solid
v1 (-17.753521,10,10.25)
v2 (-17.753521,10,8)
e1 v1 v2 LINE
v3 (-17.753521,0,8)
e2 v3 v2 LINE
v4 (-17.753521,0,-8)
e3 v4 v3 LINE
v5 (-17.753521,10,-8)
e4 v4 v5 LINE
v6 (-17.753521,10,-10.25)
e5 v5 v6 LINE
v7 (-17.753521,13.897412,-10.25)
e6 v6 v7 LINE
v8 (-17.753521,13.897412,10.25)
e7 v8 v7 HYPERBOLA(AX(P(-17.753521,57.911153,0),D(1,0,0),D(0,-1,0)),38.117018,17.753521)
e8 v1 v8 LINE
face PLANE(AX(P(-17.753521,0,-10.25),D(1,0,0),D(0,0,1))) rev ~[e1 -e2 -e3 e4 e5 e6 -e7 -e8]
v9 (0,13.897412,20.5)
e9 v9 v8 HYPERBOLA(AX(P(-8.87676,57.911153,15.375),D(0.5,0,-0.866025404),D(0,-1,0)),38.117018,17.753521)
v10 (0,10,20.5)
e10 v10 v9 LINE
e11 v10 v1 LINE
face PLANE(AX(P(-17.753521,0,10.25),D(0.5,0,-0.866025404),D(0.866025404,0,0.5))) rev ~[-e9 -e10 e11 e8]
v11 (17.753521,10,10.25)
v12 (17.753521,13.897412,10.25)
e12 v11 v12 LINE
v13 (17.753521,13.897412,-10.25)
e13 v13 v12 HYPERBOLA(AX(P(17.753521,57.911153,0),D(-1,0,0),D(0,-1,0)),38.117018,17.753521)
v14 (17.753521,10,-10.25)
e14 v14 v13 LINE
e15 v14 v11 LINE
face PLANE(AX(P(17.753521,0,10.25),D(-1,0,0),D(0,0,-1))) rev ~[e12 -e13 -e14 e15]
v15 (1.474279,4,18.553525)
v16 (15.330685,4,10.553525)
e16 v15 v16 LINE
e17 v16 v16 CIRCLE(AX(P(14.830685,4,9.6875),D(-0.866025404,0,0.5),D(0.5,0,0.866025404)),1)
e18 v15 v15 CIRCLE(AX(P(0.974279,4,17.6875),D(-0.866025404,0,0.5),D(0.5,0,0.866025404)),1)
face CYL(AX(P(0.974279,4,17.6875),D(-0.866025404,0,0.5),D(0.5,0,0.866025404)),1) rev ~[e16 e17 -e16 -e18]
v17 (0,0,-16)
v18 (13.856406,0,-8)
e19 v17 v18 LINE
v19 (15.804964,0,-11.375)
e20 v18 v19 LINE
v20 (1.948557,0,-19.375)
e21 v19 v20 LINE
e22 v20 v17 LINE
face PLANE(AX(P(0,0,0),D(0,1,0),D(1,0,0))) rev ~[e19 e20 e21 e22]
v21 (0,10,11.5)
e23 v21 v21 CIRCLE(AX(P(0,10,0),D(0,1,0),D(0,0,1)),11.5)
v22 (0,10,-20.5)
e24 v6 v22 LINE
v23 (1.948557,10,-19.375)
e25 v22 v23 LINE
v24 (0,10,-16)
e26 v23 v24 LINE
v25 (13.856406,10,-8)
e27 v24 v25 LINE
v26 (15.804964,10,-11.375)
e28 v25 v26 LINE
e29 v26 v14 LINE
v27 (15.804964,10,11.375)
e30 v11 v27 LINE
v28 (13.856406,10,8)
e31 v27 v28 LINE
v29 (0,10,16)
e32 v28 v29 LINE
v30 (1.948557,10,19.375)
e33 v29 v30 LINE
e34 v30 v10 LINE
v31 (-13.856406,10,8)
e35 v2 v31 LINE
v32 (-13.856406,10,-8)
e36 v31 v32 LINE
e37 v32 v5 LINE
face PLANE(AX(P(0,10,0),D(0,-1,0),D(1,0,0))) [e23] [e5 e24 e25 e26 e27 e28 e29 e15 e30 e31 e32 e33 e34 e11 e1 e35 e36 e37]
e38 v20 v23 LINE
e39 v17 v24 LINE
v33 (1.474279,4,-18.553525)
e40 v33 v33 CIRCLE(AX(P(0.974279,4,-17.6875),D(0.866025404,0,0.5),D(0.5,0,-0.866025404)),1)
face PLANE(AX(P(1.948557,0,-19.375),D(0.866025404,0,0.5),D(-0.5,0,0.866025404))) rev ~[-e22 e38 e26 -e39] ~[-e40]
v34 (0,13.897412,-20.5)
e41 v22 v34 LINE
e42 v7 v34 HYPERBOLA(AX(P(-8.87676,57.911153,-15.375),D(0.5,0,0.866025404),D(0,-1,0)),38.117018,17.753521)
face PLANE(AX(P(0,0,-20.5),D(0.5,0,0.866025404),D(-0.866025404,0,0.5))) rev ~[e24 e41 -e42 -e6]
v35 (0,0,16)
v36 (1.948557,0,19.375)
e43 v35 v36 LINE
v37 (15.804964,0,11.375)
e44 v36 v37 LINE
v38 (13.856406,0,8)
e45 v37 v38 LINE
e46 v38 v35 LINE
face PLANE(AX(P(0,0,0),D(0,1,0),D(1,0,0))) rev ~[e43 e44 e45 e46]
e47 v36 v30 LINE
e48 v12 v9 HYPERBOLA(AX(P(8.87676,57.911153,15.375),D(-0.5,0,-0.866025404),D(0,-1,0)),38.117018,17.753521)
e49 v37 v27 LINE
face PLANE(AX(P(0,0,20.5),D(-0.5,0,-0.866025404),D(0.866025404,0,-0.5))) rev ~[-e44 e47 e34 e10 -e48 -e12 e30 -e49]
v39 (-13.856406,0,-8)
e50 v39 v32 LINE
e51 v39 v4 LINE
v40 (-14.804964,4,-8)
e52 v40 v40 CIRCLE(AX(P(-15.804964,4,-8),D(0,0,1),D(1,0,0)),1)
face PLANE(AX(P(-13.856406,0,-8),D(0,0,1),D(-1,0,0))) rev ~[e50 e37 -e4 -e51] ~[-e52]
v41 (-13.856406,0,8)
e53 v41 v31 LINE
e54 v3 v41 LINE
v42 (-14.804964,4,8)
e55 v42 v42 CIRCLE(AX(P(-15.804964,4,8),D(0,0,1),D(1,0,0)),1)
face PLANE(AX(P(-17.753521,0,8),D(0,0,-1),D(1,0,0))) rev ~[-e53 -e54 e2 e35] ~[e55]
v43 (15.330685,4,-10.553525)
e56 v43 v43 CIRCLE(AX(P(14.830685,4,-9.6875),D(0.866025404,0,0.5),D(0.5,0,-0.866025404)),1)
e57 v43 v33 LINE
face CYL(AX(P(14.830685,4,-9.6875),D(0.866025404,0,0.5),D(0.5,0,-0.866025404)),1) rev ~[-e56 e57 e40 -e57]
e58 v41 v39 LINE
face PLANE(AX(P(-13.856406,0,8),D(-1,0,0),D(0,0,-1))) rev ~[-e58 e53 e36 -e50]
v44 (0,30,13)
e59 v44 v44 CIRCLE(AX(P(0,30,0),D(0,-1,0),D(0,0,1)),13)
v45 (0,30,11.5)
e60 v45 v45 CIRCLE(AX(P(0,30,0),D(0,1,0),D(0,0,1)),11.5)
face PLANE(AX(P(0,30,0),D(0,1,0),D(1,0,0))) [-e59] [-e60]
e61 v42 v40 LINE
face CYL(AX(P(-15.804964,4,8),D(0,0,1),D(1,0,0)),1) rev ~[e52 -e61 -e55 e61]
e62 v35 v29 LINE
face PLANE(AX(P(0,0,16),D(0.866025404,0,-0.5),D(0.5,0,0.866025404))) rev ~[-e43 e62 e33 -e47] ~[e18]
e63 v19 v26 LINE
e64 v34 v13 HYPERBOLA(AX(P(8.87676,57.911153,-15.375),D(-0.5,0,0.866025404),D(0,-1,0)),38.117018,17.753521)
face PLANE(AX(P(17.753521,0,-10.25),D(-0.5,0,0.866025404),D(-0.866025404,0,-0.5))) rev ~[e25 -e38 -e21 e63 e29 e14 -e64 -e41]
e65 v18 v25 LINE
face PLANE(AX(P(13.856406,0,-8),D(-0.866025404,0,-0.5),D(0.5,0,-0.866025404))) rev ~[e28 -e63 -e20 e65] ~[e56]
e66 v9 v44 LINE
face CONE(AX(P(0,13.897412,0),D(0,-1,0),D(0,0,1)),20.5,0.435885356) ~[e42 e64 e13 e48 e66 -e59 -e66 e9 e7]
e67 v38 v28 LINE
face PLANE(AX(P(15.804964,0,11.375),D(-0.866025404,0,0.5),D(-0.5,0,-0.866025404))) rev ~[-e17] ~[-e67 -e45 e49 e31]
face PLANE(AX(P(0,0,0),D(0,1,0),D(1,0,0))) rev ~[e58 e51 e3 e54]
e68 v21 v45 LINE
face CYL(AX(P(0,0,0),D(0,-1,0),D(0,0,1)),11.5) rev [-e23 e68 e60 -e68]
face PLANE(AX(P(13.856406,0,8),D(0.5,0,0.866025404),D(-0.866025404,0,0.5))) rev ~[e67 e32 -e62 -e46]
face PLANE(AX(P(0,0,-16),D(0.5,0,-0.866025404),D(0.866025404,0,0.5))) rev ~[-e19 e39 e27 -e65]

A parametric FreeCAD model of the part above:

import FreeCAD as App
import Part
import Sketcher
from FreeCAD import Vector
Q = App.Units.Quantity

doc = App.newDocument("Part")
body = doc.addObject("PartDesign::Body", "Body")

# Sketch on XZ plane
sketch1 = body.newObject("Sketcher::SketchObject", "Sketch")
sketch1.AttachmentSupport = (doc.getObject("XZ_Plane"), [""])
sketch1.MapMode = "FlatFace"
sketch1.addGeometry(Part.LineSegment(Vector(0, -20, 0), Vector(-18, -10, 0)), False)
sketch1.addGeometry(Part.LineSegment(Vector(-18, -10, 0), Vector(-18, 10, 0)), False)
sketch1.addGeometry(Part.LineSegment(Vector(-18, 10, 0), Vector(0, 20, 0)), False)
sketch1.addGeometry(Part.LineSegment(Vector(0, 20, 0), Vector(18, 10, 0)), False)
sketch1.addGeometry(Part.LineSegment(Vector(18, 10, 0), Vector(18, -10, 0)), False)
sketch1.addGeometry(Part.LineSegment(Vector(18, -10, 0), Vector(0, -20, 0)), False)
sketch1.addGeometry(Part.Circle(Vector(0, 0, 0), Vector(0, 0, 1), 12), False)
sketch1.addConstraint(Sketcher.Constraint("Coincident", 0, 2, 1, 1))
sketch1.addConstraint(Sketcher.Constraint("Coincident", 1, 2, 2, 1))
sketch1.addConstraint(Sketcher.Constraint("Coincident", 2, 2, 3, 1))
sketch1.addConstraint(Sketcher.Constraint("Coincident", 3, 2, 4, 1))
sketch1.addConstraint(Sketcher.Constraint("Coincident", 4, 2, 5, 1))
sketch1.addConstraint(Sketcher.Constraint("Coincident", 5, 2, 0, 1))
sketch1.addConstraint(Sketcher.Constraint("Vertical", 1))
sketch1.addConstraint(Sketcher.Constraint("Vertical", 4))
sketch1.addConstraint(Sketcher.Constraint("Coincident", 6, 3, -1, 1))
sketch1.addConstraint(Sketcher.Constraint("Symmetric", 0, 2, 3, 2, -1, 1))
sketch1.addConstraint(Sketcher.Constraint("Symmetric", 2, 2, 5, 2, -1, 1))
sketch1.addConstraint(Sketcher.Constraint("PointOnObject", 2, 2, -2))
sketch1.addConstraint(Sketcher.Constraint("Parallel", 2, 5))
sketch1.addConstraint(Sketcher.Constraint("Horizontal", 1, 2, 3, 2))
sketch1.addConstraint(Sketcher.Constraint("Diameter", 6, Q("23 mm")))
sketch1.addConstraint(Sketcher.Constraint("Angle", 0, Q("150 deg")))
sketch1.addConstraint(Sketcher.Constraint("DistanceY", 1, 1, 1, 2, Q("20.5 mm")))
sketch1.addConstraint(Sketcher.Constraint("Distance", 0, Q("20.5 mm")))
pad1 = body.newObject("PartDesign::Pad", "Pad")
pad1.Profile = sketch1
pad1.Length = 30
pad1.Reversed = True

# Sketch on XY plane
sketch2 = body.newObject("Sketcher::SketchObject", "Sketch001")
sketch2.AttachmentSupport = (doc.getObject("XY_Plane"), [""])
sketch2.MapMode = "FlatFace"
sketch2.addGeometry(Part.LineSegment(Vector(13, 30, 0), Vector(20.5, 13.9, 0)), False)
sketch2.addGeometry(Part.LineSegment(Vector(20.5, 13.9, 0), Vector(25, 13.9, 0)), False)
sketch2.addGeometry(Part.LineSegment(Vector(25, 13.9, 0), Vector(25.4, 31.1, 0)), False)
sketch2.addGeometry(Part.LineSegment(Vector(25.4, 31.1, 0), Vector(0, 31.1, 0)), False)
sketch2.addGeometry(Part.LineSegment(Vector(0, 31.1, 0), Vector(0, 30, 0)), False)
sketch2.addGeometry(Part.LineSegment(Vector(0, 30, 0), Vector(13, 30, 0)), False)
sketch2.addConstraint(Sketcher.Constraint("Coincident", 0, 2, 1, 1))
sketch2.addConstraint(Sketcher.Constraint("Coincident", 1, 2, 2, 1))
sketch2.addConstraint(Sketcher.Constraint("Coincident", 2, 2, 3, 1))
sketch2.addConstraint(Sketcher.Constraint("Coincident", 3, 2, 4, 1))
sketch2.addConstraint(Sketcher.Constraint("Coincident", 4, 2, 5, 1))
sketch2.addConstraint(Sketcher.Constraint("Coincident", 5, 2, 0, 1))
sketch2.addConstraint(Sketcher.Constraint("Horizontal", 1))
sketch2.addConstraint(Sketcher.Constraint("Horizontal", 3))
sketch2.addConstraint(Sketcher.Constraint("Vertical", 4))
sketch2.addConstraint(Sketcher.Constraint("Horizontal", 5))
sketch2.addConstraint(Sketcher.Constraint("PointOnObject", 3, 2, -2))
sketch2.addConstraint(Sketcher.Constraint("DistanceX", 5, 1, 5, 2, Q("13 mm")))
sketch2.addConstraint(Sketcher.Constraint("DistanceY", -1, 1, 4, 2, Q("30 mm")))
sketch2.addConstraint(Sketcher.Constraint("DistanceX", -1, 1, 0, 2, Q("20.5 mm")))
sketch2.addConstraint(Sketcher.Constraint("DistanceX", 1, 1, 1, 2, Q("4.473359 mm")))
sketch2.addConstraint(Sketcher.Constraint("DistanceX", 3, 2, 3, 1, Q("25.351389 mm")))
sketch2.addConstraint(Sketcher.Constraint("DistanceY", 4, 2, 4, 1, Q("1.097791 mm")))
sketch2.addConstraint(Sketcher.Constraint("Distance", 0, Q("17.76354 mm")))
groove = body.newObject("PartDesign::Groove", "Groove")
groove.Profile = sketch2
groove.ReferenceAxis = (sketch2, ["V_Axis"])
groove.Angle = 360

# Sketch on XZ plane
sketch3 = body.newObject("Sketcher::SketchObject", "Sketch002")
sketch3.AttachmentSupport = (doc.getObject("XZ_Plane"), [""])
sketch3.MapMode = "FlatFace"
sketch3.addGeometry(Part.LineSegment(Vector(-13.9, -8, 0), Vector(-17.8, -8, 0)), False)
sketch3.addGeometry(Part.LineSegment(Vector(-17.8, -8, 0), Vector(-17.8, -10.2, 0)), False)
sketch3.addGeometry(Part.LineSegment(Vector(-17.8, -10.2, 0), Vector(0, -20.5, 0)), False)
sketch3.addGeometry(Part.LineSegment(Vector(0, -20.5, 0), Vector(1.9, -19.4, 0)), False)
sketch3.addGeometry(Part.LineSegment(Vector(1.9, -19.4, 0), Vector(0, -16, 0)), False)
sketch3.addGeometry(Part.LineSegment(Vector(0, -16, 0), Vector(13.9, -8, 0)), False)
sketch3.addGeometry(Part.LineSegment(Vector(13.9, -8, 0), Vector(15.8, -11.4, 0)), False)
sketch3.addGeometry(Part.LineSegment(Vector(15.8, -11.4, 0), Vector(17.8, -10.2, 0)), False)
sketch3.addGeometry(Part.LineSegment(Vector(17.8, -10.2, 0), Vector(17.8, 10.2, 0)), False)
sketch3.addGeometry(Part.LineSegment(Vector(17.8, 10.2, 0), Vector(15.8, 11.4, 0)), False)
sketch3.addGeometry(Part.LineSegment(Vector(15.8, 11.4, 0), Vector(13.9, 8, 0)), False)
sketch3.addGeometry(Part.LineSegment(Vector(13.9, 8, 0), Vector(0, 16, 0)), False)
sketch3.addGeometry(Part.LineSegment(Vector(0, 16, 0), Vector(1.9, 19.4, 0)), False)
sketch3.addGeometry(Part.LineSegment(Vector(1.9, 19.4, 0), Vector(0, 20.5, 0)), False)
sketch3.addGeometry(Part.LineSegment(Vector(0, 20.5, 0), Vector(-17.8, 10.2, 0)), False)
sketch3.addGeometry(Part.LineSegment(Vector(-17.8, 10.2, 0), Vector(-17.8, 8, 0)), False)
sketch3.addGeometry(Part.LineSegment(Vector(-17.8, 8, 0), Vector(-13.9, 8, 0)), False)
sketch3.addGeometry(Part.LineSegment(Vector(-13.9, 8, 0), Vector(-13.9, -8, 0)), False)
sketch3.addGeometry(Part.Circle(Vector(0, 0, 0), Vector(0, 0, 1), 11.5), False)
sketch3.addConstraint(Sketcher.Constraint("Coincident", 0, 2, 1, 1))
sketch3.addConstraint(Sketcher.Constraint("Coincident", 1, 2, 2, 1))
sketch3.addConstraint(Sketcher.Constraint("Coincident", 2, 2, 3, 1))
sketch3.addConstraint(Sketcher.Constraint("Coincident", 3, 2, 4, 1))
sketch3.addConstraint(Sketcher.Constraint("Coincident", 4, 2, 5, 1))
sketch3.addConstraint(Sketcher.Constraint("Coincident", 5, 2, 6, 1))
sketch3.addConstraint(Sketcher.Constraint("Coincident", 6, 2, 7, 1))
sketch3.addConstraint(Sketcher.Constraint("Coincident", 7, 2, 8, 1))
sketch3.addConstraint(Sketcher.Constraint("Coincident", 8, 2, 9, 1))
sketch3.addConstraint(Sketcher.Constraint("Coincident", 9, 2, 10, 1))
sketch3.addConstraint(Sketcher.Constraint("Coincident", 10, 2, 11, 1))
sketch3.addConstraint(Sketcher.Constraint("Coincident", 11, 2, 12, 1))
sketch3.addConstraint(Sketcher.Constraint("Coincident", 12, 2, 13, 1))
sketch3.addConstraint(Sketcher.Constraint("Coincident", 13, 2, 14, 1))
sketch3.addConstraint(Sketcher.Constraint("Coincident", 14, 2, 15, 1))
sketch3.addConstraint(Sketcher.Constraint("Coincident", 15, 2, 16, 1))
sketch3.addConstraint(Sketcher.Constraint("Coincident", 16, 2, 17, 1))
sketch3.addConstraint(Sketcher.Constraint("Coincident", 17, 2, 0, 1))
sketch3.addConstraint(Sketcher.Constraint("Horizontal", 0))
sketch3.addConstraint(Sketcher.Constraint("Vertical", 1))
sketch3.addConstraint(Sketcher.Constraint("Vertical", 8))
sketch3.addConstraint(Sketcher.Constraint("Vertical", 15))
sketch3.addConstraint(Sketcher.Constraint("Horizontal", 16))
sketch3.addConstraint(Sketcher.Constraint("Vertical", 17))
sketch3.addConstraint(Sketcher.Constraint("Coincident", 18, 3, -1, 1))
sketch3.addConstraint(Sketcher.Constraint("Symmetric", 1, 2, 8, 2, -1, 1))
sketch3.addConstraint(Sketcher.Constraint("Symmetric", 4, 2, 11, 2, -1, 1))
sketch3.addConstraint(Sketcher.Constraint("Symmetric", 2, 2, 13, 2, -1, 1))
sketch3.addConstraint(Sketcher.Constraint("Symmetric", 7, 2, 14, 2, -1, 1))
sketch3.addConstraint(Sketcher.Constraint("Symmetric", 5, 2, 16, 2, -1, 1))
sketch3.addConstraint(Sketcher.Constraint("Symmetric", 10, 2, 17, 2, -1, 1))
sketch3.addConstraint(Sketcher.Constraint("Symmetric", 6, 2, 9, 2, -1))
sketch3.addConstraint(Sketcher.Constraint("Symmetric", 3, 2, 12, 2, -1))
sketch3.addConstraint(Sketcher.Constraint("PointOnObject", 2, 2, -2))
sketch3.addConstraint(Sketcher.Constraint("PointOnObject", 4, 2, -2))
sketch3.addConstraint(Sketcher.Constraint("Perpendicular", 3, 4))
sketch3.addConstraint(Sketcher.Constraint("Perpendicular", 4, 5))
sketch3.addConstraint(Sketcher.Constraint("Perpendicular", 5, 6))
sketch3.addConstraint(Sketcher.Constraint("Perpendicular", 6, 7))
sketch3.addConstraint(Sketcher.Constraint("Parallel", 2, 9))
sketch3.addConstraint(Sketcher.Constraint("Perpendicular", 9, 10))
sketch3.addConstraint(Sketcher.Constraint("Perpendicular", 10, 11))
sketch3.addConstraint(Sketcher.Constraint("Equal", 3, 7))
sketch3.addConstraint(Sketcher.Constraint("Diameter", 18, Q("23 mm")))
sketch3.addConstraint(Sketcher.Constraint("DistanceY", 17, 2, 17, 1, Q("16 mm")))
sketch3.addConstraint(Sketcher.Constraint("Angle", 2, Q("-30 deg")))
sketch3.addConstraint(Sketcher.Constraint("Distance", 5, Q("16 mm")))
sketch3.addConstraint(Sketcher.Constraint("DistanceY", 8, 1, 8, 2, Q("20.5 mm")))
pocket1 = body.newObject("PartDesign::Pocket", "Pocket")
pocket1.Profile = sketch3
pocket1.Length = 10

# Sketch on XY plane
sketch4 = body.newObject("Sketcher::SketchObject", "Sketch003")
sketch4.AttachmentSupport = (doc.getObject("XY_Plane"), [""])
sketch4.MapMode = "FlatFace"
sketch4.AttachmentOffset = App.Placement(Vector(0, 0, 8), App.Rotation())
sketch4.addGeometry(Part.Circle(Vector(-15.8, 4, 0), Vector(0, 0, 1), 1), False)
sketch4.addConstraint(Sketcher.Constraint("Diameter", 0, Q("2 mm")))
sketch4.addConstraint(Sketcher.Constraint("DistanceY", -1, 1, 0, 3, Q("4 mm")))
sketch4.addConstraint(Sketcher.Constraint("DistanceX", 0, 3, -1, 1, Q("15.804964 mm")))
pocket2 = body.newObject("PartDesign::Pocket", "Pocket001")
pocket2.Profile = sketch4
pocket2.Type = "ThroughAll"

# Sketch on an angled plane
sketch5 = body.newObject("Sketcher::SketchObject", "Sketch004")
sketch5.Placement = App.Placement(Vector(-6.928203, 0, 4), App.Rotation(Vector(0.5, 0, 0.866025404), Vector(0, 1, 0), Vector(-0.866025404, 0, 0.5), "ZXY"))
sketch5.addGeometry(Part.Circle(Vector(15.8, 4, 0), Vector(0, 0, 1), 1), False)
sketch5.addConstraint(Sketcher.Constraint("Diameter", 0, Q("2 mm")))
sketch5.addConstraint(Sketcher.Constraint("DistanceY", -1, 1, 0, 3, Q("4 mm")))
sketch5.addConstraint(Sketcher.Constraint("DistanceX", -1, 1, 0, 3, Q("15.804964 mm")))
pocket3 = body.newObject("PartDesign::Pocket", "Pocket002")
pocket3.Profile = sketch5
pocket3.Type = "ThroughAll"

# Sketch on an angled plane
sketch6 = body.newObject("Sketcher::SketchObject", "Sketch005")
sketch6.Placement = App.Placement(Vector(6.928203, 0, 4), App.Rotation(Vector(0.5, 0, -0.866025404), Vector(0, 1, 0), Vector(0.866025404, 0, 0.5), "ZXY"))
sketch6.addGeometry(Part.Circle(Vector(15.8, 4, 0), Vector(0, 0, 1), 1), False)
sketch6.addConstraint(Sketcher.Constraint("Diameter", 0, Q("2 mm")))
sketch6.addConstraint(Sketcher.Constraint("DistanceY", -1, 1, 0, 3, Q("4 mm")))
sketch6.addConstraint(Sketcher.Constraint("DistanceX", -1, 1, 0, 3, Q("15.804964 mm")))
pocket4 = body.newObject("PartDesign::Pocket", "Pocket003")
pocket4.Profile = sketch6
pocket4.Type = "ThroughAll"

doc.recompute()
